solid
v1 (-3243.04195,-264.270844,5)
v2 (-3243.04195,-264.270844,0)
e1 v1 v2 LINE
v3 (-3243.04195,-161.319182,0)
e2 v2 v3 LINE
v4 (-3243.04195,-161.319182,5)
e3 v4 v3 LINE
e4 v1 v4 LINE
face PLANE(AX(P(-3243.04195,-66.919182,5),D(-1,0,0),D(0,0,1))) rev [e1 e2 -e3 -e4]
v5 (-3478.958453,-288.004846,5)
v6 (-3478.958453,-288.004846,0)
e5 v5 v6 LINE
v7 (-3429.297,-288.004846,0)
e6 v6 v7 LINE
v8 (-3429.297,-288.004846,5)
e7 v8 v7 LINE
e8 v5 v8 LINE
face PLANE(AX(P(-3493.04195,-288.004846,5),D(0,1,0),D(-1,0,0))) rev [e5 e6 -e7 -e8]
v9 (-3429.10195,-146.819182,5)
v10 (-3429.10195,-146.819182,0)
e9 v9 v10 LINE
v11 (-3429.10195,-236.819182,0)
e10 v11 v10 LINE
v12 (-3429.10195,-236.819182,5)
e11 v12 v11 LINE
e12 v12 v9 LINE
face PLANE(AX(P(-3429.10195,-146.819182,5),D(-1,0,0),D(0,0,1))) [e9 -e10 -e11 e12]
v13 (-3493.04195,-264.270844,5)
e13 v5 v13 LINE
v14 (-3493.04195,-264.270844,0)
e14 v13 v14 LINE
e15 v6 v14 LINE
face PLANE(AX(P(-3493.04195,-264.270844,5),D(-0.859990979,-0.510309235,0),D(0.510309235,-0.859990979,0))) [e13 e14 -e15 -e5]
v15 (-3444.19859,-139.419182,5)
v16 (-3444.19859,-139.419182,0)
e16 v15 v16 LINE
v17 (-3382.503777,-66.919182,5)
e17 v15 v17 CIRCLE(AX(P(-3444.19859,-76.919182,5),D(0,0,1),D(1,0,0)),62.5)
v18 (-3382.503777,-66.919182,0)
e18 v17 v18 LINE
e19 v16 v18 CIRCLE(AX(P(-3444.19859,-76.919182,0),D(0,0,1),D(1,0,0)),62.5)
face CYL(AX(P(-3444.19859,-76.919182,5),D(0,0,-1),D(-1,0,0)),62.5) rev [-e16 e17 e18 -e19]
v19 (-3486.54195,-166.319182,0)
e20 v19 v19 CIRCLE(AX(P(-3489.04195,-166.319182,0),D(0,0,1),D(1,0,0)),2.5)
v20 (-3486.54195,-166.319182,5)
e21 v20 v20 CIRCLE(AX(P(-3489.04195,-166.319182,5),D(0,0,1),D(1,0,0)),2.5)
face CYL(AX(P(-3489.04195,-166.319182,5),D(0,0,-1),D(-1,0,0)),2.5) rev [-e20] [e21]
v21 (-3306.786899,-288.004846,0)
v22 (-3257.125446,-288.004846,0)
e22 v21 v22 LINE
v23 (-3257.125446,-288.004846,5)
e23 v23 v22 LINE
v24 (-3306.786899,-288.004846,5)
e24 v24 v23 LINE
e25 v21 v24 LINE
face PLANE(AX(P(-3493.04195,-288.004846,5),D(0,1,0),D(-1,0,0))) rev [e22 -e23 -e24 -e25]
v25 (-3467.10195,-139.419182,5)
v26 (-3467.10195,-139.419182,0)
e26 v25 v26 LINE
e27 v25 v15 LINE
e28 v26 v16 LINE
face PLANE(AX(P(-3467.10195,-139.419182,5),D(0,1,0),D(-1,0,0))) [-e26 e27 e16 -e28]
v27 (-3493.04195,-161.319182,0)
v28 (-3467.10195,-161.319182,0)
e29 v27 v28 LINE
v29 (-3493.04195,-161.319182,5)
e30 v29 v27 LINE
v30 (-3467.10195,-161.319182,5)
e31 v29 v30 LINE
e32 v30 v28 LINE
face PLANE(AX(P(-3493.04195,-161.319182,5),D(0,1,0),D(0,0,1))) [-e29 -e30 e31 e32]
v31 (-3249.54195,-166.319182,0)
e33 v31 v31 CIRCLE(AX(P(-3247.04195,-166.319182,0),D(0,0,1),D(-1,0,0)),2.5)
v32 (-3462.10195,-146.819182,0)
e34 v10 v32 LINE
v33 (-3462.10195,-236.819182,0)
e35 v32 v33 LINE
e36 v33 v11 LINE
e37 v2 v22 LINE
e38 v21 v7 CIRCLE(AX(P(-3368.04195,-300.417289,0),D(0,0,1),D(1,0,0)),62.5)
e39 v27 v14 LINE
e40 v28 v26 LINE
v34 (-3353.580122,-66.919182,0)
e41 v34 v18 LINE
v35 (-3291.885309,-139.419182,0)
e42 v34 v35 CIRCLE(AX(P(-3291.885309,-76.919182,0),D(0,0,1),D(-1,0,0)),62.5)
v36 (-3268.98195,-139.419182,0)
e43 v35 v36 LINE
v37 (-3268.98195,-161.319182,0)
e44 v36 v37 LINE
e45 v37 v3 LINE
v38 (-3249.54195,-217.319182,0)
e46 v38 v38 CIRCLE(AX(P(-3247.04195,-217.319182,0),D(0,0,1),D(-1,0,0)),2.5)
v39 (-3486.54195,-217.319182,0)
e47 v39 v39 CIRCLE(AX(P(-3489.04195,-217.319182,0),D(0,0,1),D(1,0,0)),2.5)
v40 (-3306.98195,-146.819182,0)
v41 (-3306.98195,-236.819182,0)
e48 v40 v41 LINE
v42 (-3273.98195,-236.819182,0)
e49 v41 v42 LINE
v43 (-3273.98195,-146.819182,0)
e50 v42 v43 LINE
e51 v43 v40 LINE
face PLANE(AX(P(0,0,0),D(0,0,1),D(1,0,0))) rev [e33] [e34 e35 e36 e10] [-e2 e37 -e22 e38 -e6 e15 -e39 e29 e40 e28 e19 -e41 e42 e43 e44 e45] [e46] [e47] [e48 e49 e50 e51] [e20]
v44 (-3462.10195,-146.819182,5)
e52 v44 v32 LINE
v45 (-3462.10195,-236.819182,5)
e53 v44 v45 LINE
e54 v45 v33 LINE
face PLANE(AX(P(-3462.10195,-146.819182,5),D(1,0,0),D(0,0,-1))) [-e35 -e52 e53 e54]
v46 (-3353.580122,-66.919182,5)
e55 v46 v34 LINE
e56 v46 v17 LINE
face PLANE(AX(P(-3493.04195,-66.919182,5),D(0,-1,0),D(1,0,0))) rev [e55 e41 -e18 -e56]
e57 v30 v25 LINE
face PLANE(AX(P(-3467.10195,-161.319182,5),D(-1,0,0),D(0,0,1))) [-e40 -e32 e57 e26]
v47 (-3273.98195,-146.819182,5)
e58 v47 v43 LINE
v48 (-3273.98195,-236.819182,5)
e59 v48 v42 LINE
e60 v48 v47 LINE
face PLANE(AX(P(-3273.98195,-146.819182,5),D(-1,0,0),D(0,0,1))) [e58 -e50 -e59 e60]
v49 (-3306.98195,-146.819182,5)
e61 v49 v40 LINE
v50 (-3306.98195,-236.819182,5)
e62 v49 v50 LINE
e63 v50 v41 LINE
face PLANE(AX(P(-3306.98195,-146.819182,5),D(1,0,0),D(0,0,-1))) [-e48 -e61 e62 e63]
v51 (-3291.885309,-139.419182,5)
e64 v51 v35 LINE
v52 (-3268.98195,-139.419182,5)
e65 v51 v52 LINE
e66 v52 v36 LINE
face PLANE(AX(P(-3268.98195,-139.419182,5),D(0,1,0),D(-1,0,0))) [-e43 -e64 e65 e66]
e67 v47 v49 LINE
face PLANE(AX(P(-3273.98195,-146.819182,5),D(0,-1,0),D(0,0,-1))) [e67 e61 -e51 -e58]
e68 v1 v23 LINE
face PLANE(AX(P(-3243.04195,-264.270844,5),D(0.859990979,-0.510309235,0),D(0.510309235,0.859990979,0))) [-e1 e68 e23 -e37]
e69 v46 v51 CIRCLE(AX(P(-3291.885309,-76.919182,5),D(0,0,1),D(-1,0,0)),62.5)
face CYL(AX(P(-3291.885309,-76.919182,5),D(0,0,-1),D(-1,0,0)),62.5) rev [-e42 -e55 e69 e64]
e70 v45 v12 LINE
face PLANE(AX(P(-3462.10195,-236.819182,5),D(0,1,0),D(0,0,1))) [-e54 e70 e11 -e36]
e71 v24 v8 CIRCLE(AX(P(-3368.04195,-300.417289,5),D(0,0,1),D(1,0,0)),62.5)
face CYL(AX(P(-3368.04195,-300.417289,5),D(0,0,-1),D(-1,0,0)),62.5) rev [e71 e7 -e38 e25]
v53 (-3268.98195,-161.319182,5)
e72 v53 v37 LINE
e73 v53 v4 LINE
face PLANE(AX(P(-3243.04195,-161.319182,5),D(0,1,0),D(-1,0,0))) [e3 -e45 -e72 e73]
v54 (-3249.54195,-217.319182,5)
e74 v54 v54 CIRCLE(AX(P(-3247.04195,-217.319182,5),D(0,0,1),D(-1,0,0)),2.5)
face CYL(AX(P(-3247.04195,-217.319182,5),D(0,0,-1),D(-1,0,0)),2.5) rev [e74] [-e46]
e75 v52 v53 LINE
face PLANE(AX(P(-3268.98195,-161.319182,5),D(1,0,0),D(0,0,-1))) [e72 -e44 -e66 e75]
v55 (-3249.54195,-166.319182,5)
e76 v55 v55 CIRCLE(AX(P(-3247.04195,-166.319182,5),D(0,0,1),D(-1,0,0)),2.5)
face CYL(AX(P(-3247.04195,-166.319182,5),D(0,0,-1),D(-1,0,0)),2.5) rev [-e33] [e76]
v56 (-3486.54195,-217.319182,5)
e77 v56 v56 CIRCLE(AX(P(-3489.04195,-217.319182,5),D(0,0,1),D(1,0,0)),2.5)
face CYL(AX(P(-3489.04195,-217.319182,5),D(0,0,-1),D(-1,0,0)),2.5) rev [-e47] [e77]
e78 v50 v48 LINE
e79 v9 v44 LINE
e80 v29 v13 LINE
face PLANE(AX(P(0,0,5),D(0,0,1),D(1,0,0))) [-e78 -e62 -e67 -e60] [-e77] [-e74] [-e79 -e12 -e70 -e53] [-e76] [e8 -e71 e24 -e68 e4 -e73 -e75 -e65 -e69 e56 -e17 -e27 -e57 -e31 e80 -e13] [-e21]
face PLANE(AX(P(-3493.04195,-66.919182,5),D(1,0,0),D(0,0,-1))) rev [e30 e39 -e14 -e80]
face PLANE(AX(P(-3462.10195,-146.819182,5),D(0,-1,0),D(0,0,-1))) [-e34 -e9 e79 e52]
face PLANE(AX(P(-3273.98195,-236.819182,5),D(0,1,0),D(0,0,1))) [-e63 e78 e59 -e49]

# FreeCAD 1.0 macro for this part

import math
import FreeCAD as App
import Part
import Sketcher

V = App.Vector

doc = App.newDocument("Part")
body = doc.addObject("PartDesign::Body", "Body")

# Sketch on XY plane
sketch1 = doc.addObject("Sketcher::SketchObject", "Sketch")
body.addObject(sketch1)
sketch1.AttachmentSupport = (doc.XY_Plane, [""])
sketch1.MapMode = "FlatFace"
sketch1.addGeometry([
    Part.LineSegment(V(-3493, -66.9, 0), V(-3493, -288, 0)),  # 0
    Part.LineSegment(V(-3493, -288, 0), V(-3243, -288, 0)),  # 1
    Part.LineSegment(V(-3243, -288, 0), V(-3243, -66.9, 0)),  # 2
    Part.LineSegment(V(-3243, -66.9, 0), V(-3493, -66.9, 0)),  # 3
    Part.Circle(V(-3489, -217.3, 0), V(0, 0, 1), 2.5),  # 4
    Part.Circle(V(-3247, -217.3, 0), V(0, 0, 1), 2.5),  # 5
    Part.LineSegment(V(-3429.1, -236.8, 0), V(-3462.1, -236.8, 0)),  # 6
    Part.LineSegment(V(-3462.1, -236.8, 0), V(-3462.1, -146.8, 0)),  # 7
    Part.LineSegment(V(-3462.1, -146.8, 0), V(-3429.1, -146.8, 0)),  # 8
    Part.LineSegment(V(-3429.1, -146.8, 0), V(-3429.1, -236.8, 0)),  # 9
    Part.Circle(V(-3489, -166.3, 0), V(0, 0, 1), 2.5),  # 10
    Part.LineSegment(V(-3274, -236.8, 0), V(-3307, -236.8, 0)),  # 11
    Part.LineSegment(V(-3307, -236.8, 0), V(-3307, -146.8, 0)),  # 12
    Part.LineSegment(V(-3307, -146.8, 0), V(-3274, -146.8, 0)),  # 13
    Part.LineSegment(V(-3274, -146.8, 0), V(-3274, -236.8, 0)),  # 14
    Part.Circle(V(-3247, -166.3, 0), V(0, 0, 1), 2.5),  # 15
], False)
sketch1.addConstraint([
    Sketcher.Constraint("Coincident", 0, 2, 1, 1),
    Sketcher.Constraint("Coincident", 1, 2, 2, 1),
    Sketcher.Constraint("Coincident", 2, 2, 3, 1),
    Sketcher.Constraint("Coincident", 3, 2, 0, 1),
    Sketcher.Constraint("Coincident", 6, 2, 7, 1),
    Sketcher.Constraint("Coincident", 7, 2, 8, 1),
    Sketcher.Constraint("Coincident", 8, 2, 9, 1),
    Sketcher.Constraint("Coincident", 9, 2, 6, 1),
    Sketcher.Constraint("Coincident", 11, 2, 12, 1),
    Sketcher.Constraint("Coincident", 12, 2, 13, 1),
    Sketcher.Constraint("Coincident", 13, 2, 14, 1),
    Sketcher.Constraint("Coincident", 14, 2, 11, 1),
    Sketcher.Constraint("Vertical", 0),
    Sketcher.Constraint("Horizontal", 1),
    Sketcher.Constraint("Vertical", 2),
    Sketcher.Constraint("Horizontal", 3),
    Sketcher.Constraint("Horizontal", 6),
    Sketcher.Constraint("Vertical", 7),
    Sketcher.Constraint("Horizontal", 8),
    Sketcher.Constraint("Vertical", 9),
    Sketcher.Constraint("Horizontal", 11),
    Sketcher.Constraint("Vertical", 12),
    Sketcher.Constraint("Horizontal", 13),
    Sketcher.Constraint("Vertical", 14),
    Sketcher.Constraint("Equal", 4, 5),
    Sketcher.Constraint("Equal", 5, 10),
    Sketcher.Constraint("Equal", 10, 15),
    Sketcher.Constraint("Horizontal", 4, 3, 5, 3),
    Sketcher.Constraint("Horizontal", 10, 3, 15, 3),
    Sketcher.Constraint("Horizontal", 9, 2, 11, 2),
    Sketcher.Constraint("Horizontal", 8, 2, 12, 2),
    Sketcher.Constraint("Vertical", 4, 3, 10, 3),
    Sketcher.Constraint("Vertical", 5, 3, 15, 3),
    Sketcher.Constraint("Equal", 8, 11),
    Sketcher.Constraint("Diameter", 4, 5.0),
    Sketcher.Constraint("DistanceX", 1, 1, 1, 2, 250.0),
    Sketcher.Constraint("DistanceX", 6, 2, 6, 1, 33.0),
    Sketcher.Constraint("DistanceY", 7, 1, 7, 2, 90.0),
    Sketcher.Constraint("DistanceX", 4, 3, 5, 3, 242.0),
    Sketcher.Constraint("DistanceY", 4, 3, 10, 3, 51.0),
    Sketcher.Constraint("DistanceX", 0, 2, 4, 3, 4.0),
    Sketcher.Constraint("DistanceY", 15, 3, 2, 2, 99.4),
    Sketcher.Constraint("DistanceY", 6, 2, 4, 3, 19.5),
    Sketcher.Constraint("DistanceX", 4, 3, 6, 2, 26.94),
    Sketcher.Constraint("DistanceX", 11, 2, 5, 3, 59.94),
    Sketcher.Constraint("DistanceY", 0, 2, 0, 1, 221.085664),
    Sketcher.Constraint("DistanceX", 4, 3, -1, 1, 3489.04195),
    Sketcher.Constraint("DistanceY", 4, 3, -1, 1, 217.319182),
])
pad1 = doc.addObject("PartDesign::Pad", "Pad")
body.addObject(pad1)
pad1.Profile = sketch1
pad1.Length = 5

# Sketch on XY plane
sketch2 = doc.addObject("Sketcher::SketchObject", "Sketch001")
body.addObject(sketch2)
sketch2.AttachmentSupport = (doc.XY_Plane, [""])
sketch2.MapMode = "FlatFace"
sketch2.addGeometry([
    Part.Circle(V(-3368, -300, 0), V(0, 0, 1), 62),  # 0
    Part.LineSegment(V(-3493, -264, 0), V(-3503, -270, 0)),  # 1
    Part.LineSegment(V(-3503, -270, 0), V(-3489, -294, 0)),  # 2
    Part.LineSegment(V(-3489, -294, 0), V(-3479, -288, 0)),  # 3
    Part.LineSegment(V(-3479, -288, 0), V(-3493, -264, 0)),  # 4
    Part.LineSegment(V(-3493, -67, 0), V(-3493, -161, 0)),  # 5
    Part.LineSegment(V(-3493, -161, 0), V(-3467, -161, 0)),  # 6
    Part.LineSegment(V(-3467, -161, 0), V(-3467, -139, 0)),  # 7
    Part.LineSegment(V(-3467, -139, 0), V(-3444, -139, 0)),  # 8
    Part.ArcOfCircle(Part.Circle(V(-3444, -77, 0), V(0, 0, 1), 62), math.radians(-90), math.radians(9)),  # 9
    Part.LineSegment(V(-3383, -67, 0), V(-3493, -67, 0)),  # 10
    Part.LineSegment(V(-3257, -288, 0), V(-3247, -294, 0)),  # 11
    Part.LineSegment(V(-3247, -294, 0), V(-3233, -270, 0)),  # 12
    Part.LineSegment(V(-3233, -270, 0), V(-3243, -264, 0)),  # 13
    Part.LineSegment(V(-3243, -264, 0), V(-3257, -288, 0)),  # 14
    Part.LineSegment(V(-3292, -139, 0), V(-3269, -139, 0)),  # 15
    Part.LineSegment(V(-3269, -139, 0), V(-3269, -161, 0)),  # 16
    Part.LineSegment(V(-3269, -161, 0), V(-3243, -161, 0)),  # 17
    Part.LineSegment(V(-3243, -161, 0), V(-3243, -67, 0)),  # 18
    Part.LineSegment(V(-3243, -67, 0), V(-3354, -67, 0)),  # 19
    Part.ArcOfCircle(Part.Circle(V(-3292, -77, 0), V(0, 0, 1), 62), math.radians(171), math.radians(270)),  # 20
], False)
sketch2.addConstraint([
    Sketcher.Constraint("Coincident", 1, 2, 2, 1),
    Sketcher.Constraint("Coincident", 2, 2, 3, 1),
    Sketcher.Constraint("Coincident", 3, 2, 4, 1),
    Sketcher.Constraint("Coincident", 4, 2, 1, 1),
    Sketcher.Constraint("Coincident", 5, 2, 6, 1),
    Sketcher.Constraint("Coincident", 6, 2, 7, 1),
    Sketcher.Constraint("Coincident", 7, 2, 8, 1),
    Sketcher.Constraint("Tangent", 8, 2, 9, 1),
    Sketcher.Constraint("Coincident", 9, 2, 10, 1),
    Sketcher.Constraint("Coincident", 10, 2, 5, 1),
    Sketcher.Constraint("Coincident", 11, 2, 12, 1),
    Sketcher.Constraint("Coincident", 12, 2, 13, 1),
    Sketcher.Constraint("Coincident", 13, 2, 14, 1),
    Sketcher.Constraint("Coincident", 14, 2, 11, 1),
    Sketcher.Constraint("Coincident", 15, 2, 16, 1),
    Sketcher.Constraint("Coincident", 16, 2, 17, 1),
    Sketcher.Constraint("Coincident", 17, 2, 18, 1),
    Sketcher.Constraint("Coincident", 18, 2, 19, 1),
    Sketcher.Constraint("Coincident", 19, 2, 20, 1),
    Sketcher.Constraint("Tangent", 20, 2, 15, 1),
    Sketcher.Constraint("Vertical", 5),
    Sketcher.Constraint("Horizontal", 6),
    Sketcher.Constraint("Vertical", 7),
    Sketcher.Constraint("Horizontal", 8),
    Sketcher.Constraint("Horizontal", 10),
    Sketcher.Constraint("Horizontal", 15),
    Sketcher.Constraint("Vertical", 16),
    Sketcher.Constraint("Horizontal", 17),
    Sketcher.Constraint("Vertical", 18),
    Sketcher.Constraint("Horizontal", 19),
    Sketcher.Constraint("Equal", 0, 9),
    Sketcher.Constraint("Equal", 9, 20),
    Sketcher.Constraint("Perpendicular", 1, 2),
    Sketcher.Constraint("Perpendicular", 2, 3),
    Sketcher.Constraint("Perpendicular", 3, 4),
    Sketcher.Constraint("Perpendicular", 11, 12),
    Sketcher.Constraint("Perpendicular", 12, 13),
    Sketcher.Constraint("Perpendicular", 13, 14),
    Sketcher.Constraint("Horizontal", 9, 3, 20, 3),
    Sketcher.Constraint("Horizontal", 2, 2, 11, 2),
    Sketcher.Constraint("Horizontal", 1, 2, 12, 2),
    Sketcher.Constraint("Horizontal", 4, 2, 13, 2),
    Sketcher.Constraint("Horizontal", 6, 2, 16, 2),
    Sketcher.Constraint("Horizontal", 10, 2, 18, 2),
    Sketcher.Constraint("Vertical", 4, 2, 5, 2),
    Sketcher.Constraint("Vertical", 13, 2, 17, 2),
    Sketcher.Constraint("Equal", 8, 15),
    Sketcher.Constraint("Equal", 6, 17),
    Sketcher.Constraint("Equal", 3, 11),
    Sketcher.Constraint("Diameter", 0, 125.0),
    Sketcher.Constraint("DistanceY", 5, 2, 5, 1, 94.4),
    Sketcher.Constraint("DistanceY", 7, 1, 7, 2, 21.9),
    Sketcher.Constraint("DistanceX", 4, 2, 0, 3, 125.0),
    Sketcher.Constraint("DistanceX", 0, 3, 13, 2, 125.0),
    Sketcher.Constraint("DistanceX", 6, 1, 6, 2, 25.94),
    Sketcher.Constraint("DistanceY", 2, 2, 1, 2, 23.734002),
    Sketcher.Constraint("DistanceX", 8, 1, 8, 2, 22.903359),
    Sketcher.Constraint("DistanceY", 3, 2, 1, 2, 17.5533),
    Sketcher.Constraint("Distance", 1, 12.11168),
    Sketcher.Constraint("DistanceX", 0, 3, -1, 1, 3368.04195),
    Sketcher.Constraint("DistanceY", 0, 3, -1, 1, 300.417289),
    Sketcher.Constraint("DistanceY", 2, 2, -1, 1, 294.185548),
    Sketcher.Constraint("DistanceY", 4, 2, 9, 3, 187.351662),
])
pocket1 = doc.addObject("PartDesign::Pocket", "Pocket")
body.addObject(pocket1)
pocket1.Profile = sketch2
pocket1.Type = "ThroughAll"
pocket1.Reversed = True

doc.recompute()
